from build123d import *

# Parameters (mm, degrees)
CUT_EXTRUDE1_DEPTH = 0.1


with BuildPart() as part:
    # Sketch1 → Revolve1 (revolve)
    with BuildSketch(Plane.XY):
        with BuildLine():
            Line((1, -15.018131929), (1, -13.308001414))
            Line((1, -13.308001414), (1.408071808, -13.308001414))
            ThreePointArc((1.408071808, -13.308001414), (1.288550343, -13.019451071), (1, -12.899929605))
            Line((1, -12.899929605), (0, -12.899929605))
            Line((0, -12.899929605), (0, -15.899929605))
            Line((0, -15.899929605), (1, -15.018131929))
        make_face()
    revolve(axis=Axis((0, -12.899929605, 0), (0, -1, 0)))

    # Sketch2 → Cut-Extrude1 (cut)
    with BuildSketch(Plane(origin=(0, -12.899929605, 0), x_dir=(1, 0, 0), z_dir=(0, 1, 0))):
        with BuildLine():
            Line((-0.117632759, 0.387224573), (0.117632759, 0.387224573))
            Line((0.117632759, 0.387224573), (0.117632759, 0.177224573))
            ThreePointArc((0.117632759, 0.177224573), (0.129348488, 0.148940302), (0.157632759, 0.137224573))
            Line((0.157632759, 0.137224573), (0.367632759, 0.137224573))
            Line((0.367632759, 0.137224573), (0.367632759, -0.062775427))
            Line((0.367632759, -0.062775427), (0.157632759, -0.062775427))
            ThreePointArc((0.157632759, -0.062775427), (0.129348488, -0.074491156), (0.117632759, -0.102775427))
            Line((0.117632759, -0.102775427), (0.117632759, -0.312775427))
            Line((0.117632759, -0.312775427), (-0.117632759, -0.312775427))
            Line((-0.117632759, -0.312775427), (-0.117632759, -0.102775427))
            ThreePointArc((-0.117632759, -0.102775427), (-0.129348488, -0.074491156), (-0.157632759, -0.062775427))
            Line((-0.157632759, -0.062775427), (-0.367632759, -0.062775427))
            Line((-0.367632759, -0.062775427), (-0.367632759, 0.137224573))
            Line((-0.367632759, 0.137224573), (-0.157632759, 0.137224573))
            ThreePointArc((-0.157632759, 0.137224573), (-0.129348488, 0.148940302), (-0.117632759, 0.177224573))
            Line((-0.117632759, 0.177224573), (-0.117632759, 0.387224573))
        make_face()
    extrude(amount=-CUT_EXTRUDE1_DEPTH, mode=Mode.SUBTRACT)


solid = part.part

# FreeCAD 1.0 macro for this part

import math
import FreeCAD as App
import Part
import Sketcher
from FreeCAD import Vector
Q = App.Units.Quantity

doc = App.newDocument("Part")
body = doc.addObject("PartDesign::Body", "Body")

sketch1 = body.newObject("Sketcher::SketchObject", "Sketch")
sketch1.AttachmentSupport = (doc.getObject("XY_Plane"), [""])
sketch1.MapMode = "FlatFace"
sketch1.addGeometry(Part.LineSegment(Vector(1, -15.018132, 0), Vector(1, -13.308001, 0)), False)
sketch1.addGeometry(Part.LineSegment(Vector(1, -13.308001, 0), Vector(1.408072, -13.308001, 0)), False)
sketch1.addGeometry(Part.ArcOfCircle(Part.Circle(Vector(1, -13.308001, 0), Vector(0, 0, 1), 0.408072), math.radians(0), math.radians(90)), False)
sketch1.addGeometry(Part.LineSegment(Vector(1, -12.89993, 0), Vector(0, -12.89993, 0)), False)
sketch1.addGeometry(Part.LineSegment(Vector(0, -12.89993, 0), Vector(0, -15.89993, 0)), False)
sketch1.addGeometry(Part.LineSegment(Vector(0, -15.89993, 0), Vector(1, -15.018132, 0)), False)
sketch1.addConstraint(Sketcher.Constraint("Coincident", 0, 2, 1, 1))
sketch1.addConstraint(Sketcher.Constraint("Coincident", 1, 2, 2, 1))
sketch1.addConstraint(Sketcher.Constraint("Tangent", 2, 2, 3, 1))
sketch1.addConstraint(Sketcher.Constraint("Coincident", 3, 2, 4, 1))
sketch1.addConstraint(Sketcher.Constraint("Coincident", 4, 2, 5, 1))
sketch1.addConstraint(Sketcher.Constraint("Coincident", 5, 2, 0, 1))
sketch1.addConstraint(Sketcher.Constraint("Vertical", 0))
sketch1.addConstraint(Sketcher.Constraint("Horizontal", 1))
sketch1.addConstraint(Sketcher.Constraint("Horizontal", 3))
sketch1.addConstraint(Sketcher.Constraint("Vertical", 4))
sketch1.addConstraint(Sketcher.Constraint("Coincident", 0, 2, 2, 3))
sketch1.addConstraint(Sketcher.Constraint("PointOnObject", 3, 2, -2))
sketch1.addConstraint(Sketcher.Constraint("DistanceX", 3, 2, 3, 1, Q("1 mm")))
sketch1.addConstraint(Sketcher.Constraint("DistanceY", 4, 2, 4, 1, Q("3 mm")))
sketch1.addConstraint(Sketcher.Constraint("Radius", 2, Q("0.408072 mm")))
sketch1.addConstraint(Sketcher.Constraint("DistanceY", 2, 3, -1, 1, Q("13.308001 mm")))
sketch1.addConstraint(Sketcher.Constraint("DistanceY", 0, 1, 0, 2, Q("1.710131 mm")))
revolution = body.newObject("PartDesign::Revolution", "Revolution")
revolution.Profile = sketch1
revolution.ReferenceAxis = (sketch1, ["V_Axis"])
revolution.Angle = 360

sketch2 = body.newObject("Sketcher::SketchObject", "Sketch001")
sketch2.AttachmentSupport = (doc.getObject("XZ_Plane"), [""])
sketch2.MapMode = "FlatFace"
sketch2.AttachmentOffset = App.Placement(Vector(0, 0, 12.89993), App.Rotation())
sketch2.addGeometry(Part.LineSegment(Vector(0.117633, -0.387225, 0), Vector(-0.117633, -0.387225, 0)), False)
sketch2.addGeometry(Part.LineSegment(Vector(-0.117633, -0.387225, 0), Vector(-0.117633, -0.177225, 0)), False)
sketch2.addGeometry(Part.ArcOfCircle(Part.Circle(Vector(-0.157633, -0.177225, 0), Vector(0, 0, 1), 0.04), math.radians(0.000001), math.radians(89.999999)), False)
sketch2.addGeometry(Part.LineSegment(Vector(-0.157633, -0.137225, 0), Vector(-0.367633, -0.137225, 0)), False)
sketch2.addGeometry(Part.LineSegment(Vector(-0.367633, -0.137225, 0), Vector(-0.367633, 0.062775, 0)), False)
sketch2.addGeometry(Part.LineSegment(Vector(-0.367633, 0.062775, 0), Vector(-0.157633, 0.062775, 0)), False)
sketch2.addGeometry(Part.ArcOfCircle(Part.Circle(Vector(-0.157633, 0.102775, 0), Vector(0, 0, 1), 0.04), math.radians(-89.999999), math.radians(-0.000001)), False)
sketch2.addGeometry(Part.LineSegment(Vector(-0.117633, 0.102775, 0), Vector(-0.117633, 0.312775, 0)), False)
sketch2.addGeometry(Part.LineSegment(Vector(-0.117633, 0.312775, 0), Vector(0.117633, 0.312775, 0)), False)
sketch2.addGeometry(Part.LineSegment(Vector(0.117633, 0.312775, 0), Vector(0.117633, 0.102775, 0)), False)
sketch2.addGeometry(Part.ArcOfCircle(Part.Circle(Vector(0.157633, 0.102775, 0), Vector(0, 0, 1), 0.04), math.radians(-179.999999), math.radians(-90.000001)), False)
sketch2.addGeometry(Part.LineSegment(Vector(0.157633, 0.062775, 0), Vector(0.367633, 0.062775, 0)), False)
sketch2.addGeometry(Part.LineSegment(Vector(0.367633, 0.062775, 0), Vector(0.367633, -0.137225, 0)), False)
sketch2.addGeometry(Part.LineSegment(Vector(0.367633, -0.137225, 0), Vector(0.157633, -0.137225, 0)), False)
sketch2.addGeometry(Part.ArcOfCircle(Part.Circle(Vector(0.157633, -0.177225, 0), Vector(0, 0, 1), 0.04), math.radians(90.000001), math.radians(179.999999)), False)
sketch2.addGeometry(Part.LineSegment(Vector(0.117633, -0.177225, 0), Vector(0.117633, -0.387225, 0)), False)
sketch2.addConstraint(Sketcher.Constraint("Coincident", 0, 2, 1, 1))
sketch2.addConstraint(Sketcher.Constraint("Tangent", 1, 2, 2, 1))
sketch2.addConstraint(Sketcher.Constraint("Tangent", 2, 2, 3, 1))
sketch2.addConstraint(Sketcher.Constraint("Coincident", 3, 2, 4, 1))
sketch2.addConstraint(Sketcher.Constraint("Coincident", 4, 2, 5, 1))
sketch2.addConstraint(Sketcher.Constraint("Tangent", 5, 2, 6, 1))
sketch2.addConstraint(Sketcher.Constraint("Tangent", 6, 2, 7, 1))
sketch2.addConstraint(Sketcher.Constraint("Coincident", 7, 2, 8, 1))
sketch2.addConstraint(Sketcher.Constraint("Coincident", 8, 2, 9, 1))
sketch2.addConstraint(Sketcher.Constraint("Tangent", 9, 2, 10, 1))
sketch2.addConstraint(Sketcher.Constraint("Tangent", 10, 2, 11, 1))
sketch2.addConstraint(Sketcher.Constraint("Coincident", 11, 2, 12, 1))
sketch2.addConstraint(Sketcher.Constraint("Coincident", 12, 2, 13, 1))
sketch2.addConstraint(Sketcher.Constraint("Tangent", 13, 2, 14, 1))
sketch2.addConstraint(Sketcher.Constraint("Tangent", 14, 2, 15, 1))
sketch2.addConstraint(Sketcher.Constraint("Coincident", 15, 2, 0, 1))
sketch2.addConstraint(Sketcher.Constraint("Horizontal", 0))
sketch2.addConstraint(Sketcher.Constraint("Vertical", 1))
sketch2.addConstraint(Sketcher.Constraint("Horizontal", 3))
sketch2.addConstraint(Sketcher.Constraint("Vertical", 4))
sketch2.addConstraint(Sketcher.Constraint("Horizontal", 5))
sketch2.addConstraint(Sketcher.Constraint("Vertical", 7))
sketch2.addConstraint(Sketcher.Constraint("Horizontal", 8))
sketch2.addConstraint(Sketcher.Constraint("Vertical", 9))
sketch2.addConstraint(Sketcher.Constraint("Horizontal", 11))
sketch2.addConstraint(Sketcher.Constraint("Vertical", 12))
sketch2.addConstraint(Sketcher.Constraint("Horizontal", 13))
sketch2.addConstraint(Sketcher.Constraint("Vertical", 15))
sketch2.addConstraint(Sketcher.Constraint("Equal", 2, 6))
sketch2.addConstraint(Sketcher.Constraint("Equal", 6, 10))
sketch2.addConstraint(Sketcher.Constraint("Equal", 10, 14))
sketch2.addConstraint(Sketcher.Constraint("Symmetric", 6, 3, 10, 3, -2))
sketch2.addConstraint(Sketcher.Constraint("Symmetric", 2, 3, 14, 3, -2))
sketch2.addConstraint(Sketcher.Constraint("Vertical", 2, 3, 6, 3))
sketch2.addConstraint(Sketcher.Constraint("Equal", 5, 11))
sketch2.addConstraint(Sketcher.Constraint("Equal", 13, 1))
sketch2.addConstraint(Sketcher.Constraint("Equal", 1, 7))
sketch2.addConstraint(Sketcher.Constraint("Radius", 2, Q("0.04 mm")))
sketch2.addConstraint(Sketcher.Constraint("DistanceY", 4, 1, 4, 2, Q("0.2 mm")))
sketch2.addConstraint(Sketcher.Constraint("DistanceX", 3, 2, 3, 1, Q("0.21 mm")))
sketch2.addConstraint(Sketcher.Constraint("DistanceX", 0, 2, 0, 1, Q("0.235266 mm")))
sketch2.addConstraint(Sketcher.Constraint("DistanceY", 2, 3, -1, 1, Q("0.177225 mm")))
pocket1 = body.newObject("PartDesign::Pocket", "Pocket")
pocket1.Profile = sketch2
pocket1.Length = 0.1
pocket1.Reversed = True

doc.recompute()
